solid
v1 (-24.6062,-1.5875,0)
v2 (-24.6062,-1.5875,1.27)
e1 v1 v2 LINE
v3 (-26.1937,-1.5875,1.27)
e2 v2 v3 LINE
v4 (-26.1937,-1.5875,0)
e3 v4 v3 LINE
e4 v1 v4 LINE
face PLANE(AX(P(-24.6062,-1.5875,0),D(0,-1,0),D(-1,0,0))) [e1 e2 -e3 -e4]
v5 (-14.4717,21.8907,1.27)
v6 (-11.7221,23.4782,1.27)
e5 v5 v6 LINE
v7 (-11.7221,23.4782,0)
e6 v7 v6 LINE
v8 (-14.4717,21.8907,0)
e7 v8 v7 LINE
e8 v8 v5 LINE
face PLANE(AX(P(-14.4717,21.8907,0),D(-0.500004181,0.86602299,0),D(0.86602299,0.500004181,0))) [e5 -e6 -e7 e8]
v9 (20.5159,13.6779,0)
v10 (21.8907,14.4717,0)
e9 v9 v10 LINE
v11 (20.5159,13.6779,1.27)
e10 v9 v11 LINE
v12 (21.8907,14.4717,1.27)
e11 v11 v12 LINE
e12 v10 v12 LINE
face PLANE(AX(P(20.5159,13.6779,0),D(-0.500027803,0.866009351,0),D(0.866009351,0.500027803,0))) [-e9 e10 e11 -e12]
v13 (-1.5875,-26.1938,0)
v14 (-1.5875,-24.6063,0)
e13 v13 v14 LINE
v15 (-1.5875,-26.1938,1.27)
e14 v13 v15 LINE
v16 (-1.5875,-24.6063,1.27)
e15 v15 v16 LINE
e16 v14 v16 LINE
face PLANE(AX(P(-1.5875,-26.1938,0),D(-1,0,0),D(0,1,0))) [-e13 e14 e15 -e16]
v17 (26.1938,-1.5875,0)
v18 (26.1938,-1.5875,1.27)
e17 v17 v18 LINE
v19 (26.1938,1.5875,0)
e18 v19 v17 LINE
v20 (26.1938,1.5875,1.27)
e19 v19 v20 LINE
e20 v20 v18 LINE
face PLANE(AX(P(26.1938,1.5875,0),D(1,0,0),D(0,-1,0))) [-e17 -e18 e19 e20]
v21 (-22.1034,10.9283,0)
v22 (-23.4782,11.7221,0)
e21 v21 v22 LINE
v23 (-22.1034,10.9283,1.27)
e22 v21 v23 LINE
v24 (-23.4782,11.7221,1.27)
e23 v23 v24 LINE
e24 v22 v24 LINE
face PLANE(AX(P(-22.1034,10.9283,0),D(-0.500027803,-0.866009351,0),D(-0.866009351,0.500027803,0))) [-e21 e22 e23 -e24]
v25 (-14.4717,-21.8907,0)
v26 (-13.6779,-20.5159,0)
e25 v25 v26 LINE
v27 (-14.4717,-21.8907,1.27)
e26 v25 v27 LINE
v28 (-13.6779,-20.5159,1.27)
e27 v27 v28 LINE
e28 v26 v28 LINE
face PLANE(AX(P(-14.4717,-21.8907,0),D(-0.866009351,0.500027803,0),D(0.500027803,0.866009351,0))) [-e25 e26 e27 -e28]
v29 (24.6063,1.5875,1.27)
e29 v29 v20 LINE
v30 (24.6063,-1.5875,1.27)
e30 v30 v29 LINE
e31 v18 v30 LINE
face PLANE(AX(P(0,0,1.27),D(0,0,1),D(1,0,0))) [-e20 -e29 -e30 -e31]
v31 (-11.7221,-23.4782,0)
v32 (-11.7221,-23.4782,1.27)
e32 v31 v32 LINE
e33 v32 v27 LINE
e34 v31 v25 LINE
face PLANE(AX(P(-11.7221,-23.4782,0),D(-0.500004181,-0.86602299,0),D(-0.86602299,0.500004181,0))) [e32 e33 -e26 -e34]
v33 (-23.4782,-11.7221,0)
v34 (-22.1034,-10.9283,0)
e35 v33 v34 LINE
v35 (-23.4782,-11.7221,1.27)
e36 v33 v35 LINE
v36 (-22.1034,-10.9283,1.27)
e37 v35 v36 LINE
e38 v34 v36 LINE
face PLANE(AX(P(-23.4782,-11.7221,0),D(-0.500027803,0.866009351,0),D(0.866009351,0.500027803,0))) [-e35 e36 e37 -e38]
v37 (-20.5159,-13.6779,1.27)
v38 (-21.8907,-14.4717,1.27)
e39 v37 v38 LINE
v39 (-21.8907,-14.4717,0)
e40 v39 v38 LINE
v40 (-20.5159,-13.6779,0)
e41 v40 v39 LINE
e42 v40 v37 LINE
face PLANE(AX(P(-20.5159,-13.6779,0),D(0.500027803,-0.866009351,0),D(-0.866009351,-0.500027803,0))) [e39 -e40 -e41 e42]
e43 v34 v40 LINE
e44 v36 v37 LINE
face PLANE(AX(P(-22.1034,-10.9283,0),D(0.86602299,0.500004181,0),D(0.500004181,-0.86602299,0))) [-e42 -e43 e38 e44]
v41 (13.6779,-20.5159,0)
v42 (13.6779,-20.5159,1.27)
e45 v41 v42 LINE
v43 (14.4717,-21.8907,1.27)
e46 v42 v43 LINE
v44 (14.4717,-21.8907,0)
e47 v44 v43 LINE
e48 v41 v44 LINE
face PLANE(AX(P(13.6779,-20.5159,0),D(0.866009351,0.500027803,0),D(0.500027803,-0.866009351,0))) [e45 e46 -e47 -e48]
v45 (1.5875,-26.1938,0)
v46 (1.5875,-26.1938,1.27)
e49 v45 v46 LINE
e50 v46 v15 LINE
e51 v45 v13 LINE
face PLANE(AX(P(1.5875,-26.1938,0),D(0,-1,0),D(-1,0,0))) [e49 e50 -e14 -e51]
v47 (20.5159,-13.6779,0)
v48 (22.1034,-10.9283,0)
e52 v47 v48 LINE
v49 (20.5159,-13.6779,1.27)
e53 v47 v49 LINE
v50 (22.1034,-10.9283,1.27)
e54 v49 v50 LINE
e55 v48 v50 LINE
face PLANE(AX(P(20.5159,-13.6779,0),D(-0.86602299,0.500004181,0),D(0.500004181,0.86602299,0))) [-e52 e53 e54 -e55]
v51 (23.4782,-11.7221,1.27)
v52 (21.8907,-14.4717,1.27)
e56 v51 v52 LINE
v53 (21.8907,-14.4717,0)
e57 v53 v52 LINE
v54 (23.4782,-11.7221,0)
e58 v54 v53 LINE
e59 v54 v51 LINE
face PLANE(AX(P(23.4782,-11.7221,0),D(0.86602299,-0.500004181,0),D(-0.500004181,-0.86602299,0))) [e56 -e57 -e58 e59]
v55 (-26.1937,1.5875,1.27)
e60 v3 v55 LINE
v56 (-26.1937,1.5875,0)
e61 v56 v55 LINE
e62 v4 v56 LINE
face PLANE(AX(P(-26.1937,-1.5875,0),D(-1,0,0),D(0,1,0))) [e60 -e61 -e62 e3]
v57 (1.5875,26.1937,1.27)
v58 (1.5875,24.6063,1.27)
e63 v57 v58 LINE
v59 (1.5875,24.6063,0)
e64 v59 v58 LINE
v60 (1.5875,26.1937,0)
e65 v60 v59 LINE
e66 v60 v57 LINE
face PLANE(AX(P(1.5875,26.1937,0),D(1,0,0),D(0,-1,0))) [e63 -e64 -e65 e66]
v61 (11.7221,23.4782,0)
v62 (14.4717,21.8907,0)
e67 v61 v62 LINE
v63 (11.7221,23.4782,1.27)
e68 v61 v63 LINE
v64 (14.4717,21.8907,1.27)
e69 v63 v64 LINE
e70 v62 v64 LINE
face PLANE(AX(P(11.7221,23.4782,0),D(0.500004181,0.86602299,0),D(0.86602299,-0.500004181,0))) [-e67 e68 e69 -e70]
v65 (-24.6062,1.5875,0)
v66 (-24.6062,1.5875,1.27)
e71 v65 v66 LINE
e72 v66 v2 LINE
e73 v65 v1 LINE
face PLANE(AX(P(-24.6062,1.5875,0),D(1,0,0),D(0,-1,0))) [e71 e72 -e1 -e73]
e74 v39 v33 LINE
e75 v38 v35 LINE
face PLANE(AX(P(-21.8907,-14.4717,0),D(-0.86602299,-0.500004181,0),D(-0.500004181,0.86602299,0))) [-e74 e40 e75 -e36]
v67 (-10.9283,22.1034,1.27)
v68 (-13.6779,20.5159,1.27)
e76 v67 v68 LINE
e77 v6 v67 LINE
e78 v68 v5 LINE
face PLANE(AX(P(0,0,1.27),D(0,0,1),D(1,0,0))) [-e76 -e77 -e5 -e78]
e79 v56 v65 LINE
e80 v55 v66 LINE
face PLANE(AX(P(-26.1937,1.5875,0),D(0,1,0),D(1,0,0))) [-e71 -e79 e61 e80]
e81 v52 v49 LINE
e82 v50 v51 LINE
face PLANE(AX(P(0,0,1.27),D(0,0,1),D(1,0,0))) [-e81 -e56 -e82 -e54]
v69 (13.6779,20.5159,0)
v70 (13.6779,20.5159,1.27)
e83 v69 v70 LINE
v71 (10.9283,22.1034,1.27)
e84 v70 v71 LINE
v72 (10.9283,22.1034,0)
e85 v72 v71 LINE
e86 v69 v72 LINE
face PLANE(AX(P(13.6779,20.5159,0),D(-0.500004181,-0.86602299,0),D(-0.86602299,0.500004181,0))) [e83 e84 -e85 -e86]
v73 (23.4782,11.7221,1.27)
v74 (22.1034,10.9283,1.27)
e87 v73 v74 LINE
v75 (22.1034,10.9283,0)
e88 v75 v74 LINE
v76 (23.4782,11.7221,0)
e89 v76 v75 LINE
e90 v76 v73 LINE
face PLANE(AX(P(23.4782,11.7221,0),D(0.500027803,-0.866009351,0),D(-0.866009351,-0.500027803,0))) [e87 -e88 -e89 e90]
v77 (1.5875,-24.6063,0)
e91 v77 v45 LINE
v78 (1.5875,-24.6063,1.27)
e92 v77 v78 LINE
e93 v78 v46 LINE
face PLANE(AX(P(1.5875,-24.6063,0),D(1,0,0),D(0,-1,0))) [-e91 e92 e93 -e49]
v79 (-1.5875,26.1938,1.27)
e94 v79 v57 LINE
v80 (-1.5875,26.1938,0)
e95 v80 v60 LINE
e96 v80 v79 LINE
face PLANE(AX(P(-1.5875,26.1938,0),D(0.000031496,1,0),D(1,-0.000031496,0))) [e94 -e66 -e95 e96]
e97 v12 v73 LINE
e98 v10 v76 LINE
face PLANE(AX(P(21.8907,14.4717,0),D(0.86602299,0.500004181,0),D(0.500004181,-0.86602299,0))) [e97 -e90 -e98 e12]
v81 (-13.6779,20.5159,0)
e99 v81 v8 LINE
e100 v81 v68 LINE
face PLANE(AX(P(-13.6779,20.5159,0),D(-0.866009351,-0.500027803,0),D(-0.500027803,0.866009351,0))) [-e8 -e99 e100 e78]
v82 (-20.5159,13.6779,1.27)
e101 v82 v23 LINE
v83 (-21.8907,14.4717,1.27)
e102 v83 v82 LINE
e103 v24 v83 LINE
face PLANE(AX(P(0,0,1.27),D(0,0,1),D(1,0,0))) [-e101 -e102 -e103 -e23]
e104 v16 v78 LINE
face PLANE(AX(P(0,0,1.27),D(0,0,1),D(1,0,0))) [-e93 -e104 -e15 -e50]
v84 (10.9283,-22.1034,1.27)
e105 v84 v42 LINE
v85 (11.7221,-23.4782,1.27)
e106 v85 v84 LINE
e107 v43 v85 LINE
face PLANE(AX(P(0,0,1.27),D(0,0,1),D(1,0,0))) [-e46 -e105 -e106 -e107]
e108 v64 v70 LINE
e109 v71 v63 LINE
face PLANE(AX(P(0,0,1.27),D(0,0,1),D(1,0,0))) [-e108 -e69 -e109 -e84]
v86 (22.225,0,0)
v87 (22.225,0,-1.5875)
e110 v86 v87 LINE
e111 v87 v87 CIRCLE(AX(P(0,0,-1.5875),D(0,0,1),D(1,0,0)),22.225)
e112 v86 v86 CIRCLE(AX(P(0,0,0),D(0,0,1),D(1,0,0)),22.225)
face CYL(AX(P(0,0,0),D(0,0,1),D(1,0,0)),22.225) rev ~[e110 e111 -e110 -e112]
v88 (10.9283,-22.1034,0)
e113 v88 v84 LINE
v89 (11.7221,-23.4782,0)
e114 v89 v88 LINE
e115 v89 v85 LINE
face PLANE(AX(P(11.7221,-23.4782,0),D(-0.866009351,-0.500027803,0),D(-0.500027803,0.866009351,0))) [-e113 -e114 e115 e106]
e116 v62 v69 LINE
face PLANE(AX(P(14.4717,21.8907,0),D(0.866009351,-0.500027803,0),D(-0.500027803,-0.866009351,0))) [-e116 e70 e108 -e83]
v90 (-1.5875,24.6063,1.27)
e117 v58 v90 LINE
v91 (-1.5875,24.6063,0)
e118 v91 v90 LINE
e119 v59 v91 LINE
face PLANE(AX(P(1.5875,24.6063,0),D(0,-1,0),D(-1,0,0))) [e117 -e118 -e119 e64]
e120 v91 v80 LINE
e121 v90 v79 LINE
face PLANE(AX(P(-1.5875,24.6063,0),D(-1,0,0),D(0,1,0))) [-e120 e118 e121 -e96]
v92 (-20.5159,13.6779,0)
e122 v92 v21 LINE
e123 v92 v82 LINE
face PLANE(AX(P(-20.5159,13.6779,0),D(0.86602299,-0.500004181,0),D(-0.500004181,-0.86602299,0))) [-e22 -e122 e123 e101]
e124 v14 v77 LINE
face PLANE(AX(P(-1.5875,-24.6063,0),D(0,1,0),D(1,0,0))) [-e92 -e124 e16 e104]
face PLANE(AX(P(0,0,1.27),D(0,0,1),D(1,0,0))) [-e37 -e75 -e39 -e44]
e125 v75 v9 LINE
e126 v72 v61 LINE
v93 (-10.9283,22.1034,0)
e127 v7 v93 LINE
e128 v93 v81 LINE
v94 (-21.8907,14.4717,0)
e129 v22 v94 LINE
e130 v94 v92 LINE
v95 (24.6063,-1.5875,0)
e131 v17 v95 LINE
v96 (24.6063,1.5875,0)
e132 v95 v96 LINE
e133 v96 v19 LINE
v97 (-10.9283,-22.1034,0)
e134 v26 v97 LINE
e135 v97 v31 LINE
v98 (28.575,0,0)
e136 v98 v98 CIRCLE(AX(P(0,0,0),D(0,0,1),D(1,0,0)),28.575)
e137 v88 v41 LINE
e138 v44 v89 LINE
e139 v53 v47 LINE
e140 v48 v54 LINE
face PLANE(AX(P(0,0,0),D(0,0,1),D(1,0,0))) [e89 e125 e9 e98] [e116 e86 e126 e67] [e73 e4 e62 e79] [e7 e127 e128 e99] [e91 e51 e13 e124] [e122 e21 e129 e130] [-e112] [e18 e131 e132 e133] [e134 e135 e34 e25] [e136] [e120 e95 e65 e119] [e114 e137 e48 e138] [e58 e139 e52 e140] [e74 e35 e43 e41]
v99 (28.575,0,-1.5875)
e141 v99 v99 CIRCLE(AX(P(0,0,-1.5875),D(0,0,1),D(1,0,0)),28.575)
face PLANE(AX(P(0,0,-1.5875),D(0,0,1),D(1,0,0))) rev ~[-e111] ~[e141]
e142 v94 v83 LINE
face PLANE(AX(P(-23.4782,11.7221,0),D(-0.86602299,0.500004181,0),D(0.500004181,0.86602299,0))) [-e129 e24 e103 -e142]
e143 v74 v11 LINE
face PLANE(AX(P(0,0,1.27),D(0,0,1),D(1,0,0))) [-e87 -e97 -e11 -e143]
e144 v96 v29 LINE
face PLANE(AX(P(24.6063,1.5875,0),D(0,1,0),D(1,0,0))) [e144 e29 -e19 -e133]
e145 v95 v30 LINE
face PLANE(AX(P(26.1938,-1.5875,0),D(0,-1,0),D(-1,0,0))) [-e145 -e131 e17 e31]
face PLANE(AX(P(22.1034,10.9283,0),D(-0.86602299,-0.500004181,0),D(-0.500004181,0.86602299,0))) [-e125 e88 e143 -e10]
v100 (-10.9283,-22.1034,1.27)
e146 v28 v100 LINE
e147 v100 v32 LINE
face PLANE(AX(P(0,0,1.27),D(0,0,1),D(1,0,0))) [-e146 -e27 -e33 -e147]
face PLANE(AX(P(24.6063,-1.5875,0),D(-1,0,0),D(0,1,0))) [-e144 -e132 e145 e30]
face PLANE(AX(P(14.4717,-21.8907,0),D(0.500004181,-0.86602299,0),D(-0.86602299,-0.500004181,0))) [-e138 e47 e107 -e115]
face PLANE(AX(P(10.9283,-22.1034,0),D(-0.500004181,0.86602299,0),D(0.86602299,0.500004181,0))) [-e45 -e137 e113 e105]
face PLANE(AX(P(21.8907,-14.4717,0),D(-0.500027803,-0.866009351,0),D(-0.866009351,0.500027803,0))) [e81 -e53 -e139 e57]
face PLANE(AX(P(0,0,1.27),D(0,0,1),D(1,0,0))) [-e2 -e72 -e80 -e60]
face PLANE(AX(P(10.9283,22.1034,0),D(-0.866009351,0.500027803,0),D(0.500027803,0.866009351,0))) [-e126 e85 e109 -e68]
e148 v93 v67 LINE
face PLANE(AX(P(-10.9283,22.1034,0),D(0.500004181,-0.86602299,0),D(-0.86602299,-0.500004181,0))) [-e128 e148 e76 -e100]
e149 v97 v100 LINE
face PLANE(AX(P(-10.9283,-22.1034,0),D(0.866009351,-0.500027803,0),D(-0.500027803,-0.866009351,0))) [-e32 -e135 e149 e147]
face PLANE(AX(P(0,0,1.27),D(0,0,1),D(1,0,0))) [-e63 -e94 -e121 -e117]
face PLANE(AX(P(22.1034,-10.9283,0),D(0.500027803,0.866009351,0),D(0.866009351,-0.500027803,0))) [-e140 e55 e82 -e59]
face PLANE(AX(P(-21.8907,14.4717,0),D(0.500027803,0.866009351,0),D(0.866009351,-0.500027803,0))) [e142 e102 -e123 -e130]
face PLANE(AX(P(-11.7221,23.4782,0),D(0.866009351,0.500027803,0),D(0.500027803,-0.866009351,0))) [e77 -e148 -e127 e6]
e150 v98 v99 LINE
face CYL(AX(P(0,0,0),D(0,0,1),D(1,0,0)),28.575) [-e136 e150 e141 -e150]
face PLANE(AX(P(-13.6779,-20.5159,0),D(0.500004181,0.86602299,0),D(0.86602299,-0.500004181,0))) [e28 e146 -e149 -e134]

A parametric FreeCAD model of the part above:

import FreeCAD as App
import Part
import Sketcher

V = App.Vector
Q = App.Units.Quantity

doc = App.newDocument("Part")
body = doc.addObject("PartDesign::Body", "Body")

# Sketch on XY plane
sketch1 = body.newObject("Sketcher::SketchObject", "Sketch")
sketch1.AttachmentSupport = (doc.getObject("XY_Plane"), [""])
sketch1.MapMode = "FlatFace"
sketch1.addGeometry([
    Part.Circle(V(0, 0, 0), V(0, 0, 1), 29),
    Part.Circle(V(0, 0, 0), V(0, 0, 1), 22),
], False)
sketch1.addConstraint([
    Sketcher.Constraint("Coincident", 0, 3, -1, 1),
    Sketcher.Constraint("Coincident", 1, 3, -1, 1),
    Sketcher.Constraint("Diameter", 0, Q("2.25 in")),
    Sketcher.Constraint("Diameter", 1, Q("1.75 in")),
])
pad1 = body.newObject("PartDesign::Pad", "Pad")
pad1.Profile = sketch1
pad1.Length = Q("0.0625 in")
pad1.Reversed = True

# Sketch on XY plane
sketch2 = body.newObject("Sketcher::SketchObject", "Sketch001")
sketch2.AttachmentSupport = (doc.getObject("XY_Plane"), [""])
sketch2.MapMode = "FlatFace"
sketch2.addGeometry([
    Part.LineSegment(V(-24.6, 1.6, 0), V(-26.2, 1.6, 0)),  # 0
    Part.LineSegment(V(-26.2, 1.6, 0), V(-26.2, -1.6, 0)),  # 1
    Part.LineSegment(V(-26.2, -1.6, 0), V(-24.6, -1.6, 0)),  # 2
    Part.LineSegment(V(-24.6, -1.6, 0), V(-24.6, 1.6, 0)),  # 3
    Part.LineSegment(V(-22.1, -10.9, 0), V(-23.5, -11.7, 0)),  # 4
    Part.LineSegment(V(-23.5, -11.7, 0), V(-21.9, -14.5, 0)),  # 5
    Part.LineSegment(V(-21.9, -14.5, 0), V(-20.5, -13.7, 0)),  # 6
    Part.LineSegment(V(-20.5, -13.7, 0), V(-22.1, -10.9, 0)),  # 7
    Part.LineSegment(V(-13.7, -20.5, 0), V(-14.5, -21.9, 0)),  # 8
    Part.LineSegment(V(-14.5, -21.9, 0), V(-11.7, -23.5, 0)),  # 9
    Part.LineSegment(V(-11.7, -23.5, 0), V(-10.9, -22.1, 0)),  # 10
    Part.LineSegment(V(-10.9, -22.1, 0), V(-13.7, -20.5, 0)),  # 11
    Part.LineSegment(V(-1.6, -24.6, 0), V(-1.6, -26.2, 0)),  # 12
    Part.LineSegment(V(-1.6, -26.2, 0), V(1.6, -26.2, 0)),  # 13
    Part.LineSegment(V(1.6, -26.2, 0), V(1.6, -24.6, 0)),  # 14
    Part.LineSegment(V(1.6, -24.6, 0), V(-1.6, -24.6, 0)),  # 15
    Part.LineSegment(V(10.9, -22.1, 0), V(11.7, -23.5, 0)),  # 16
    Part.LineSegment(V(11.7, -23.5, 0), V(14.5, -21.9, 0)),  # 17
    Part.LineSegment(V(14.5, -21.9, 0), V(13.7, -20.5, 0)),  # 18
    Part.LineSegment(V(13.7, -20.5, 0), V(10.9, -22.1, 0)),  # 19
    Part.LineSegment(V(20.5, -13.7, 0), V(21.9, -14.5, 0)),  # 20
    Part.LineSegment(V(21.9, -14.5, 0), V(23.5, -11.7, 0)),  # 21
    Part.LineSegment(V(23.5, -11.7, 0), V(22.1, -10.9, 0)),  # 22
    Part.LineSegment(V(22.1, -10.9, 0), V(20.5, -13.7, 0)),  # 23
    Part.LineSegment(V(24.6, -1.6, 0), V(26.2, -1.6, 0)),  # 24
    Part.LineSegment(V(26.2, -1.6, 0), V(26.2, 1.6, 0)),  # 25
    Part.LineSegment(V(26.2, 1.6, 0), V(24.6, 1.6, 0)),  # 26
    Part.LineSegment(V(24.6, 1.6, 0), V(24.6, -1.6, 0)),  # 27
    Part.LineSegment(V(22.1, 10.9, 0), V(23.5, 11.7, 0)),  # 28
    Part.LineSegment(V(23.5, 11.7, 0), V(21.9, 14.5, 0)),  # 29
    Part.LineSegment(V(21.9, 14.5, 0), V(20.5, 13.7, 0)),  # 30
    Part.LineSegment(V(20.5, 13.7, 0), V(22.1, 10.9, 0)),  # 31
    Part.LineSegment(V(13.7, 20.5, 0), V(14.5, 21.9, 0)),  # 32
    Part.LineSegment(V(14.5, 21.9, 0), V(11.7, 23.5, 0)),  # 33
    Part.LineSegment(V(11.7, 23.5, 0), V(10.9, 22.1, 0)),  # 34
    Part.LineSegment(V(10.9, 22.1, 0), V(13.7, 20.5, 0)),  # 35
    Part.LineSegment(V(1.6, 24.6, 0), V(1.6, 26.2, 0)),  # 36
    Part.LineSegment(V(1.6, 26.2, 0), V(-1.6, 26.2, 0)),  # 37
    Part.LineSegment(V(-1.6, 26.2, 0), V(-1.6, 24.6, 0)),  # 38
    Part.LineSegment(V(-1.6, 24.6, 0), V(1.6, 24.6, 0)),  # 39
    Part.LineSegment(V(-10.9, 22.1, 0), V(-11.7, 23.5, 0)),  # 40
    Part.LineSegment(V(-11.7, 23.5, 0), V(-14.5, 21.9, 0)),  # 41
    Part.LineSegment(V(-14.5, 21.9, 0), V(-13.7, 20.5, 0)),  # 42
    Part.LineSegment(V(-13.7, 20.5, 0), V(-10.9, 22.1, 0)),  # 43
    Part.LineSegment(V(-20.5, 13.7, 0), V(-21.9, 14.5, 0)),  # 44
    Part.LineSegment(V(-21.9, 14.5, 0), V(-23.5, 11.7, 0)),  # 45
    Part.LineSegment(V(-23.5, 11.7, 0), V(-22.1, 10.9, 0)),  # 46
    Part.LineSegment(V(-22.1, 10.9, 0), V(-20.5, 13.7, 0)),  # 47
], False)
sketch2.addConstraint([
    Sketcher.Constraint("Coincident", 0, 2, 1, 1),
    Sketcher.Constraint("Coincident", 1, 2, 2, 1),
    Sketcher.Constraint("Coincident", 2, 2, 3, 1),
    Sketcher.Constraint("Coincident", 3, 2, 0, 1),
    Sketcher.Constraint("Coincident", 4, 2, 5, 1),
    Sketcher.Constraint("Coincident", 5, 2, 6, 1),
    Sketcher.Constraint("Coincident", 6, 2, 7, 1),
    Sketcher.Constraint("Coincident", 7, 2, 4, 1),
    Sketcher.Constraint("Coincident", 8, 2, 9, 1),
    Sketcher.Constraint("Coincident", 9, 2, 10, 1),
    Sketcher.Constraint("Coincident", 10, 2, 11, 1),
    Sketcher.Constraint("Coincident", 11, 2, 8, 1),
    Sketcher.Constraint("Coincident", 12, 2, 13, 1),
    Sketcher.Constraint("Coincident", 13, 2, 14, 1),
    Sketcher.Constraint("Coincident", 14, 2, 15, 1),
    Sketcher.Constraint("Coincident", 15, 2, 12, 1),
    Sketcher.Constraint("Coincident", 16, 2, 17, 1),
    Sketcher.Constraint("Coincident", 17, 2, 18, 1),
    Sketcher.Constraint("Coincident", 18, 2, 19, 1),
    Sketcher.Constraint("Coincident", 19, 2, 16, 1),
    Sketcher.Constraint("Coincident", 20, 2, 21, 1),
    Sketcher.Constraint("Coincident", 21, 2, 22, 1),
    Sketcher.Constraint("Coincident", 22, 2, 23, 1),
    Sketcher.Constraint("Coincident", 23, 2, 20, 1),
    Sketcher.Constraint("Coincident", 24, 2, 25, 1),
    Sketcher.Constraint("Coincident", 25, 2, 26, 1),
    Sketcher.Constraint("Coincident", 26, 2, 27, 1),
    Sketcher.Constraint("Coincident", 27, 2, 24, 1),
    Sketcher.Constraint("Coincident", 28, 2, 29, 1),
    Sketcher.Constraint("Coincident", 29, 2, 30, 1),
    Sketcher.Constraint("Coincident", 30, 2, 31, 1),
    Sketcher.Constraint("Coincident", 31, 2, 28, 1),
    Sketcher.Constraint("Coincident", 32, 2, 33, 1),
    Sketcher.Constraint("Coincident", 33, 2, 34, 1),
    Sketcher.Constraint("Coincident", 34, 2, 35, 1),
    Sketcher.Constraint("Coincident", 35, 2, 32, 1),
    Sketcher.Constraint("Coincident", 36, 2, 37, 1),
    Sketcher.Constraint("Coincident", 37, 2, 38, 1),
    Sketcher.Constraint("Coincident", 38, 2, 39, 1),
    Sketcher.Constraint("Coincident", 39, 2, 36, 1),
    Sketcher.Constraint("Coincident", 40, 2, 41, 1),
    Sketcher.Constraint("Coincident", 41, 2, 42, 1),
    Sketcher.Constraint("Coincident", 42, 2, 43, 1),
    Sketcher.Constraint("Coincident", 43, 2, 40, 1),
    Sketcher.Constraint("Coincident", 44, 2, 45, 1),
    Sketcher.Constraint("Coincident", 45, 2, 46, 1),
    Sketcher.Constraint("Coincident", 46, 2, 47, 1),
    Sketcher.Constraint("Coincident", 47, 2, 44, 1),
    Sketcher.Constraint("Horizontal", 0),
    Sketcher.Constraint("Vertical", 1),
    Sketcher.Constraint("Horizontal", 2),
    Sketcher.Constraint("Vertical", 3),
    Sketcher.Constraint("Vertical", 12),
    Sketcher.Constraint("Horizontal", 13),
    Sketcher.Constraint("Vertical", 14),
    Sketcher.Constraint("Horizontal", 15),
    Sketcher.Constraint("Horizontal", 24),
    Sketcher.Constraint("Vertical", 25),
    Sketcher.Constraint("Horizontal", 26),
    Sketcher.Constraint("Vertical", 27),
    Sketcher.Constraint("Vertical", 36),
    Sketcher.Constraint("Horizontal", 37),
    Sketcher.Constraint("Vertical", 38),
    Sketcher.Constraint("Horizontal", 39),
    Sketcher.Constraint("Symmetric", 0, 2, 24, 2, -1, 1),
    Sketcher.Constraint("Symmetric", 2, 2, 26, 2, -1, 1),
    Sketcher.Constraint("Symmetric", 4, 2, 28, 2, -1, 1),
    Sketcher.Constraint("Symmetric", 5, 2, 29, 2, -1, 1),
    Sketcher.Constraint("Symmetric", 6, 2, 30, 2, -1, 1),
    Sketcher.Constraint("Symmetric", 7, 2, 31, 2, -1, 1),
    Sketcher.Constraint("Symmetric", 8, 2, 32, 2, -1, 1),
    Sketcher.Constraint("Symmetric", 9, 2, 33, 2, -1, 1),
    Sketcher.Constraint("Symmetric", 10, 2, 34, 2, -1, 1),
    Sketcher.Constraint("Symmetric", 11, 2, 35, 2, -1, 1),
    Sketcher.Constraint("Symmetric", 12, 2, 36, 2, -1, 1),
    Sketcher.Constraint("Symmetric", 14, 2, 38, 2, -1, 1),
    Sketcher.Constraint("Symmetric", 16, 2, 40, 2, -1, 1),
    Sketcher.Constraint("Symmetric", 17, 2, 41, 2, -1, 1),
    Sketcher.Constraint("Symmetric", 18, 2, 42, 2, -1, 1),
    Sketcher.Constraint("Symmetric", 19, 2, 43, 2, -1, 1),
    Sketcher.Constraint("Symmetric", 20, 2, 44, 2, -1, 1),
    Sketcher.Constraint("Symmetric", 21, 2, 45, 2, -1, 1),
    Sketcher.Constraint("Symmetric", 22, 2, 46, 2, -1, 1),
    Sketcher.Constraint("Symmetric", 23, 2, 47, 2, -1, 1),
    Sketcher.Constraint("Symmetric", 9, 2, 16, 2, -2),
    Sketcher.Constraint("Symmetric", 8, 2, 17, 2, -2),
    Sketcher.Constraint("Symmetric", 11, 2, 18, 2, -2),
    Sketcher.Constraint("Symmetric", 10, 2, 19, 2, -2),
    Sketcher.Constraint("Symmetric", 5, 2, 20, 2, -2),
    Sketcher.Constraint("Symmetric", 4, 2, 21, 2, -2),
    Sketcher.Constraint("Symmetric", 7, 2, 22, 2, -2),
    Sketcher.Constraint("Symmetric", 6, 2, 23, 2, -2),
    Sketcher.Constraint("Perpendicular", 4, 5),
    Sketcher.Constraint("Perpendicular", 5, 6),
    Sketcher.Constraint("Perpendicular", 6, 7),
    Sketcher.Constraint("Perpendicular", 8, 9),
    Sketcher.Constraint("Perpendicular", 9, 10),
    Sketcher.Constraint("Perpendicular", 10, 11),
    Sketcher.Constraint("Parallel", 7, 16),
    Sketcher.Constraint("Horizontal", 2, 2, 24, 2),
    Sketcher.Constraint("Vertical", 14, 2, 36, 2),
    Sketcher.Constraint("Equal", 39, 1),
    Sketcher.Constraint("Equal", 26, 12),
    Sketcher.Constraint("Equal", 6, 8),
    Sketcher.Constraint("Equal", 7, 9),
    Sketcher.Constraint("DistanceX", 0, 2, 0, 1, Q("0.0625 in")),
    Sketcher.Constraint("DistanceX", 13, 1, 13, 2, Q("0.125 in")),
    Sketcher.Constraint("Distance", 4, Q("0.0625 in")),
    Sketcher.Constraint("Distance", 5, Q("0.125 in")),
    Sketcher.Constraint("Angle", 5, Q("-59.9997 deg")),
    Sketcher.Constraint("DistanceX", 0, 2, -1, 1, Q("1.031248 in")),
    Sketcher.Constraint("DistanceY", 12, 2, -1, 1, Q("1.031252 in")),
    Sketcher.Constraint("DistanceY", 4, 2, 2, 2, Q("0.399 in")),
    Sketcher.Constraint("DistanceX", 2, 2, 8, 2, Q("0.399 in")),
    Sketcher.Constraint("DistanceX", 2, 2, 4, 2, Q("0.0444 in")),
    Sketcher.Constraint("DistanceY", 8, 2, 7, 2, Q("0.4316 in")),
])
pad2 = body.newObject("PartDesign::Pad", "Pad001")
pad2.Profile = sketch2
pad2.Length = Q("0.05 in")

doc.recompute()
